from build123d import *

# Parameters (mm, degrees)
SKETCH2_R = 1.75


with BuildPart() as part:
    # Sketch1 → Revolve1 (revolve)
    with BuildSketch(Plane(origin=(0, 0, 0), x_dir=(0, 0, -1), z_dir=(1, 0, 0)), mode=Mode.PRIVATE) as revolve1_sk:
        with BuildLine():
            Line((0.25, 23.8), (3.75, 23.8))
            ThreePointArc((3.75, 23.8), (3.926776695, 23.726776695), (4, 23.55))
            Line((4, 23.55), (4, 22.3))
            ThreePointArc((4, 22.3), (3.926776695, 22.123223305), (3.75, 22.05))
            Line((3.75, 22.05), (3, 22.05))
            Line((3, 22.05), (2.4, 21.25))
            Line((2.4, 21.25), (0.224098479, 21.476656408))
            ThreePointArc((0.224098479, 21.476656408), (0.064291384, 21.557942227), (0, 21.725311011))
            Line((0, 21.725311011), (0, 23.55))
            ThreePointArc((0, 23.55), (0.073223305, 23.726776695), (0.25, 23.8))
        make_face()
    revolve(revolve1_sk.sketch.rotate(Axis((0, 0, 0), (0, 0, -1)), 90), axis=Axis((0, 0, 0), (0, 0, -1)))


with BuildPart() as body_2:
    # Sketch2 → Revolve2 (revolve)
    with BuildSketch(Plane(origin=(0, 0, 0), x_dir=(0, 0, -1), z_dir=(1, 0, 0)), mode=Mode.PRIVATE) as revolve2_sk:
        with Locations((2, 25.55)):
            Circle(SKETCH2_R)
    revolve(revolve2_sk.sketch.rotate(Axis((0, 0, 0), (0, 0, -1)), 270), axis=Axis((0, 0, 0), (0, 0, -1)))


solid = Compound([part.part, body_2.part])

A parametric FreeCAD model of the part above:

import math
import FreeCAD as App
import Part
import Sketcher

V = App.Vector

doc = App.newDocument("Part")
params = doc.addObject("Spreadsheet::Sheet", "Params")
for row, (alias, value) in enumerate([
    ("sketch1_radius", "0.25 mm"),
    ("sketch1_length", "1 mm"),
    ("sketch1_height", "3.5 mm"),
    ("sketch1_width", "1.25 mm"),
    ("revolution_angle", "360 deg"),
    ("sketch2_diameter", "3.5 mm"),
    ("revolution2_angle", "360 deg"),
], start=1):
    params.set(f"A{row}", alias)
    params.set(f"B{row}", "=" + value)
    params.setAlias(f"B{row}", alias)

body = doc.addObject("PartDesign::Body", "Body")

sketch1 = body.newObject("Sketcher::SketchObject", "Sketch")
sketch1.AttachmentSupport = (doc.getObject("YZ_Plane"), [""])
sketch1.MapMode = "FlatFace"
sketch1.addGeometry([
    Part.LineSegment(V(23.8, -3.75, 0), V(23.8, -0.25, 0)),
    Part.ArcOfCircle(Part.Circle(V(23.55, -0.25, 0), V(0, 0, 1), 0.25), math.radians(0), math.radians(90)),
    Part.LineSegment(V(23.55, 0, 0), V(21.73, 0, 0)),
    Part.ArcOfCircle(Part.Circle(V(21.73, -0.25, 0), V(0, 0, 1), 0.25), math.radians(90), math.radians(174)),
    Part.LineSegment(V(21.48, -0.22, 0), V(21.25, -2.4, 0)),
    Part.LineSegment(V(21.25, -2.4, 0), V(22.05, -3, 0)),
    Part.LineSegment(V(22.05, -3, 0), V(22.05, -3.75, 0)),
    Part.ArcOfCircle(Part.Circle(V(22.3, -3.75, 0), V(0, 0, 1), 0.25), math.radians(-180), math.radians(-90)),
    Part.LineSegment(V(22.3, -4, 0), V(23.55, -4, 0)),
    Part.ArcOfCircle(Part.Circle(V(23.55, -3.75, 0), V(0, 0, 1), 0.25), math.radians(-90), math.radians(0)),
], False)
sketch1.addConstraint([
    Sketcher.Constraint("Tangent", 0, 2, 1, 1),
    Sketcher.Constraint("Tangent", 1, 2, 2, 1),
    Sketcher.Constraint("Tangent", 2, 2, 3, 1),
    Sketcher.Constraint("Tangent", 3, 2, 4, 1),
    Sketcher.Constraint("Coincident", 4, 2, 5, 1),
    Sketcher.Constraint("Coincident", 5, 2, 6, 1),
    Sketcher.Constraint("Tangent", 6, 2, 7, 1),
    Sketcher.Constraint("Tangent", 7, 2, 8, 1),
    Sketcher.Constraint("Tangent", 8, 2, 9, 1),
    Sketcher.Constraint("Tangent", 9, 2, 0, 1),
    Sketcher.Constraint("Vertical", 0),
    Sketcher.Constraint("Horizontal", 2),
    Sketcher.Constraint("Vertical", 6),
    Sketcher.Constraint("Horizontal", 8),
    Sketcher.Constraint("Equal", 1, 3),
    Sketcher.Constraint("Equal", 3, 7),
    Sketcher.Constraint("Equal", 7, 9),
    Sketcher.Constraint("PointOnObject", 1, 2, -1),
    Sketcher.Constraint("Radius", 1, 0.25),
    Sketcher.Constraint("Distance", 5, 1.0),
    Sketcher.Constraint("DistanceY", 0, 1, 0, 2, 3.5),
    Sketcher.Constraint("DistanceY", 5, 2, -1, 1, 3.0),
    Sketcher.Constraint("DistanceX", 8, 1, 8, 2, 1.25),
    Sketcher.Constraint("DistanceX", -1, 1, 7, 3, 22.3),
    Sketcher.Constraint("DistanceY", 4, 2, -1, 1, 2.4),
    Sketcher.Constraint("DistanceX", 2, 2, 2, 1, 1.824689),
])
sketch1.setExpression("Constraints[18]", "Params.sketch1_radius")
sketch1.setExpression("Constraints[19]", "Params.sketch1_length")
sketch1.setExpression("Constraints[20]", "Params.sketch1_height")
sketch1.setExpression("Constraints[22]", "Params.sketch1_width")
revolution = body.newObject("PartDesign::Revolution", "Revolution")
revolution.Profile = sketch1
revolution.ReferenceAxis = (sketch1, ["V_Axis"])
revolution.setExpression("Angle", "Params.revolution_angle")
body2 = doc.addObject("PartDesign::Body", "Body001")

sketch2 = body2.newObject("Sketcher::SketchObject", "Sketch001")
sketch2.AttachmentSupport = (doc.getObject("YZ_Plane001"), [""])
sketch2.MapMode = "FlatFace"
sketch2.addGeometry(Part.Circle(V(25.6, -2, 0), V(0, 0, 1), 1.8), False)
sketch2.addConstraint([
    Sketcher.Constraint("Diameter", 0, 3.5),
    Sketcher.Constraint("DistanceY", 0, 3, -1, 1, 2.0),
    Sketcher.Constraint("DistanceX", -1, 1, 0, 3, 25.55),
])
sketch2.setExpression("Constraints[0]", "Params.sketch2_diameter")
revolution2 = body2.newObject("PartDesign::Revolution", "Revolution001")
revolution2.Profile = sketch2
revolution2.ReferenceAxis = (sketch2, ["V_Axis"])
revolution2.setExpression("Angle", "Params.revolution2_angle")

doc.recompute()
